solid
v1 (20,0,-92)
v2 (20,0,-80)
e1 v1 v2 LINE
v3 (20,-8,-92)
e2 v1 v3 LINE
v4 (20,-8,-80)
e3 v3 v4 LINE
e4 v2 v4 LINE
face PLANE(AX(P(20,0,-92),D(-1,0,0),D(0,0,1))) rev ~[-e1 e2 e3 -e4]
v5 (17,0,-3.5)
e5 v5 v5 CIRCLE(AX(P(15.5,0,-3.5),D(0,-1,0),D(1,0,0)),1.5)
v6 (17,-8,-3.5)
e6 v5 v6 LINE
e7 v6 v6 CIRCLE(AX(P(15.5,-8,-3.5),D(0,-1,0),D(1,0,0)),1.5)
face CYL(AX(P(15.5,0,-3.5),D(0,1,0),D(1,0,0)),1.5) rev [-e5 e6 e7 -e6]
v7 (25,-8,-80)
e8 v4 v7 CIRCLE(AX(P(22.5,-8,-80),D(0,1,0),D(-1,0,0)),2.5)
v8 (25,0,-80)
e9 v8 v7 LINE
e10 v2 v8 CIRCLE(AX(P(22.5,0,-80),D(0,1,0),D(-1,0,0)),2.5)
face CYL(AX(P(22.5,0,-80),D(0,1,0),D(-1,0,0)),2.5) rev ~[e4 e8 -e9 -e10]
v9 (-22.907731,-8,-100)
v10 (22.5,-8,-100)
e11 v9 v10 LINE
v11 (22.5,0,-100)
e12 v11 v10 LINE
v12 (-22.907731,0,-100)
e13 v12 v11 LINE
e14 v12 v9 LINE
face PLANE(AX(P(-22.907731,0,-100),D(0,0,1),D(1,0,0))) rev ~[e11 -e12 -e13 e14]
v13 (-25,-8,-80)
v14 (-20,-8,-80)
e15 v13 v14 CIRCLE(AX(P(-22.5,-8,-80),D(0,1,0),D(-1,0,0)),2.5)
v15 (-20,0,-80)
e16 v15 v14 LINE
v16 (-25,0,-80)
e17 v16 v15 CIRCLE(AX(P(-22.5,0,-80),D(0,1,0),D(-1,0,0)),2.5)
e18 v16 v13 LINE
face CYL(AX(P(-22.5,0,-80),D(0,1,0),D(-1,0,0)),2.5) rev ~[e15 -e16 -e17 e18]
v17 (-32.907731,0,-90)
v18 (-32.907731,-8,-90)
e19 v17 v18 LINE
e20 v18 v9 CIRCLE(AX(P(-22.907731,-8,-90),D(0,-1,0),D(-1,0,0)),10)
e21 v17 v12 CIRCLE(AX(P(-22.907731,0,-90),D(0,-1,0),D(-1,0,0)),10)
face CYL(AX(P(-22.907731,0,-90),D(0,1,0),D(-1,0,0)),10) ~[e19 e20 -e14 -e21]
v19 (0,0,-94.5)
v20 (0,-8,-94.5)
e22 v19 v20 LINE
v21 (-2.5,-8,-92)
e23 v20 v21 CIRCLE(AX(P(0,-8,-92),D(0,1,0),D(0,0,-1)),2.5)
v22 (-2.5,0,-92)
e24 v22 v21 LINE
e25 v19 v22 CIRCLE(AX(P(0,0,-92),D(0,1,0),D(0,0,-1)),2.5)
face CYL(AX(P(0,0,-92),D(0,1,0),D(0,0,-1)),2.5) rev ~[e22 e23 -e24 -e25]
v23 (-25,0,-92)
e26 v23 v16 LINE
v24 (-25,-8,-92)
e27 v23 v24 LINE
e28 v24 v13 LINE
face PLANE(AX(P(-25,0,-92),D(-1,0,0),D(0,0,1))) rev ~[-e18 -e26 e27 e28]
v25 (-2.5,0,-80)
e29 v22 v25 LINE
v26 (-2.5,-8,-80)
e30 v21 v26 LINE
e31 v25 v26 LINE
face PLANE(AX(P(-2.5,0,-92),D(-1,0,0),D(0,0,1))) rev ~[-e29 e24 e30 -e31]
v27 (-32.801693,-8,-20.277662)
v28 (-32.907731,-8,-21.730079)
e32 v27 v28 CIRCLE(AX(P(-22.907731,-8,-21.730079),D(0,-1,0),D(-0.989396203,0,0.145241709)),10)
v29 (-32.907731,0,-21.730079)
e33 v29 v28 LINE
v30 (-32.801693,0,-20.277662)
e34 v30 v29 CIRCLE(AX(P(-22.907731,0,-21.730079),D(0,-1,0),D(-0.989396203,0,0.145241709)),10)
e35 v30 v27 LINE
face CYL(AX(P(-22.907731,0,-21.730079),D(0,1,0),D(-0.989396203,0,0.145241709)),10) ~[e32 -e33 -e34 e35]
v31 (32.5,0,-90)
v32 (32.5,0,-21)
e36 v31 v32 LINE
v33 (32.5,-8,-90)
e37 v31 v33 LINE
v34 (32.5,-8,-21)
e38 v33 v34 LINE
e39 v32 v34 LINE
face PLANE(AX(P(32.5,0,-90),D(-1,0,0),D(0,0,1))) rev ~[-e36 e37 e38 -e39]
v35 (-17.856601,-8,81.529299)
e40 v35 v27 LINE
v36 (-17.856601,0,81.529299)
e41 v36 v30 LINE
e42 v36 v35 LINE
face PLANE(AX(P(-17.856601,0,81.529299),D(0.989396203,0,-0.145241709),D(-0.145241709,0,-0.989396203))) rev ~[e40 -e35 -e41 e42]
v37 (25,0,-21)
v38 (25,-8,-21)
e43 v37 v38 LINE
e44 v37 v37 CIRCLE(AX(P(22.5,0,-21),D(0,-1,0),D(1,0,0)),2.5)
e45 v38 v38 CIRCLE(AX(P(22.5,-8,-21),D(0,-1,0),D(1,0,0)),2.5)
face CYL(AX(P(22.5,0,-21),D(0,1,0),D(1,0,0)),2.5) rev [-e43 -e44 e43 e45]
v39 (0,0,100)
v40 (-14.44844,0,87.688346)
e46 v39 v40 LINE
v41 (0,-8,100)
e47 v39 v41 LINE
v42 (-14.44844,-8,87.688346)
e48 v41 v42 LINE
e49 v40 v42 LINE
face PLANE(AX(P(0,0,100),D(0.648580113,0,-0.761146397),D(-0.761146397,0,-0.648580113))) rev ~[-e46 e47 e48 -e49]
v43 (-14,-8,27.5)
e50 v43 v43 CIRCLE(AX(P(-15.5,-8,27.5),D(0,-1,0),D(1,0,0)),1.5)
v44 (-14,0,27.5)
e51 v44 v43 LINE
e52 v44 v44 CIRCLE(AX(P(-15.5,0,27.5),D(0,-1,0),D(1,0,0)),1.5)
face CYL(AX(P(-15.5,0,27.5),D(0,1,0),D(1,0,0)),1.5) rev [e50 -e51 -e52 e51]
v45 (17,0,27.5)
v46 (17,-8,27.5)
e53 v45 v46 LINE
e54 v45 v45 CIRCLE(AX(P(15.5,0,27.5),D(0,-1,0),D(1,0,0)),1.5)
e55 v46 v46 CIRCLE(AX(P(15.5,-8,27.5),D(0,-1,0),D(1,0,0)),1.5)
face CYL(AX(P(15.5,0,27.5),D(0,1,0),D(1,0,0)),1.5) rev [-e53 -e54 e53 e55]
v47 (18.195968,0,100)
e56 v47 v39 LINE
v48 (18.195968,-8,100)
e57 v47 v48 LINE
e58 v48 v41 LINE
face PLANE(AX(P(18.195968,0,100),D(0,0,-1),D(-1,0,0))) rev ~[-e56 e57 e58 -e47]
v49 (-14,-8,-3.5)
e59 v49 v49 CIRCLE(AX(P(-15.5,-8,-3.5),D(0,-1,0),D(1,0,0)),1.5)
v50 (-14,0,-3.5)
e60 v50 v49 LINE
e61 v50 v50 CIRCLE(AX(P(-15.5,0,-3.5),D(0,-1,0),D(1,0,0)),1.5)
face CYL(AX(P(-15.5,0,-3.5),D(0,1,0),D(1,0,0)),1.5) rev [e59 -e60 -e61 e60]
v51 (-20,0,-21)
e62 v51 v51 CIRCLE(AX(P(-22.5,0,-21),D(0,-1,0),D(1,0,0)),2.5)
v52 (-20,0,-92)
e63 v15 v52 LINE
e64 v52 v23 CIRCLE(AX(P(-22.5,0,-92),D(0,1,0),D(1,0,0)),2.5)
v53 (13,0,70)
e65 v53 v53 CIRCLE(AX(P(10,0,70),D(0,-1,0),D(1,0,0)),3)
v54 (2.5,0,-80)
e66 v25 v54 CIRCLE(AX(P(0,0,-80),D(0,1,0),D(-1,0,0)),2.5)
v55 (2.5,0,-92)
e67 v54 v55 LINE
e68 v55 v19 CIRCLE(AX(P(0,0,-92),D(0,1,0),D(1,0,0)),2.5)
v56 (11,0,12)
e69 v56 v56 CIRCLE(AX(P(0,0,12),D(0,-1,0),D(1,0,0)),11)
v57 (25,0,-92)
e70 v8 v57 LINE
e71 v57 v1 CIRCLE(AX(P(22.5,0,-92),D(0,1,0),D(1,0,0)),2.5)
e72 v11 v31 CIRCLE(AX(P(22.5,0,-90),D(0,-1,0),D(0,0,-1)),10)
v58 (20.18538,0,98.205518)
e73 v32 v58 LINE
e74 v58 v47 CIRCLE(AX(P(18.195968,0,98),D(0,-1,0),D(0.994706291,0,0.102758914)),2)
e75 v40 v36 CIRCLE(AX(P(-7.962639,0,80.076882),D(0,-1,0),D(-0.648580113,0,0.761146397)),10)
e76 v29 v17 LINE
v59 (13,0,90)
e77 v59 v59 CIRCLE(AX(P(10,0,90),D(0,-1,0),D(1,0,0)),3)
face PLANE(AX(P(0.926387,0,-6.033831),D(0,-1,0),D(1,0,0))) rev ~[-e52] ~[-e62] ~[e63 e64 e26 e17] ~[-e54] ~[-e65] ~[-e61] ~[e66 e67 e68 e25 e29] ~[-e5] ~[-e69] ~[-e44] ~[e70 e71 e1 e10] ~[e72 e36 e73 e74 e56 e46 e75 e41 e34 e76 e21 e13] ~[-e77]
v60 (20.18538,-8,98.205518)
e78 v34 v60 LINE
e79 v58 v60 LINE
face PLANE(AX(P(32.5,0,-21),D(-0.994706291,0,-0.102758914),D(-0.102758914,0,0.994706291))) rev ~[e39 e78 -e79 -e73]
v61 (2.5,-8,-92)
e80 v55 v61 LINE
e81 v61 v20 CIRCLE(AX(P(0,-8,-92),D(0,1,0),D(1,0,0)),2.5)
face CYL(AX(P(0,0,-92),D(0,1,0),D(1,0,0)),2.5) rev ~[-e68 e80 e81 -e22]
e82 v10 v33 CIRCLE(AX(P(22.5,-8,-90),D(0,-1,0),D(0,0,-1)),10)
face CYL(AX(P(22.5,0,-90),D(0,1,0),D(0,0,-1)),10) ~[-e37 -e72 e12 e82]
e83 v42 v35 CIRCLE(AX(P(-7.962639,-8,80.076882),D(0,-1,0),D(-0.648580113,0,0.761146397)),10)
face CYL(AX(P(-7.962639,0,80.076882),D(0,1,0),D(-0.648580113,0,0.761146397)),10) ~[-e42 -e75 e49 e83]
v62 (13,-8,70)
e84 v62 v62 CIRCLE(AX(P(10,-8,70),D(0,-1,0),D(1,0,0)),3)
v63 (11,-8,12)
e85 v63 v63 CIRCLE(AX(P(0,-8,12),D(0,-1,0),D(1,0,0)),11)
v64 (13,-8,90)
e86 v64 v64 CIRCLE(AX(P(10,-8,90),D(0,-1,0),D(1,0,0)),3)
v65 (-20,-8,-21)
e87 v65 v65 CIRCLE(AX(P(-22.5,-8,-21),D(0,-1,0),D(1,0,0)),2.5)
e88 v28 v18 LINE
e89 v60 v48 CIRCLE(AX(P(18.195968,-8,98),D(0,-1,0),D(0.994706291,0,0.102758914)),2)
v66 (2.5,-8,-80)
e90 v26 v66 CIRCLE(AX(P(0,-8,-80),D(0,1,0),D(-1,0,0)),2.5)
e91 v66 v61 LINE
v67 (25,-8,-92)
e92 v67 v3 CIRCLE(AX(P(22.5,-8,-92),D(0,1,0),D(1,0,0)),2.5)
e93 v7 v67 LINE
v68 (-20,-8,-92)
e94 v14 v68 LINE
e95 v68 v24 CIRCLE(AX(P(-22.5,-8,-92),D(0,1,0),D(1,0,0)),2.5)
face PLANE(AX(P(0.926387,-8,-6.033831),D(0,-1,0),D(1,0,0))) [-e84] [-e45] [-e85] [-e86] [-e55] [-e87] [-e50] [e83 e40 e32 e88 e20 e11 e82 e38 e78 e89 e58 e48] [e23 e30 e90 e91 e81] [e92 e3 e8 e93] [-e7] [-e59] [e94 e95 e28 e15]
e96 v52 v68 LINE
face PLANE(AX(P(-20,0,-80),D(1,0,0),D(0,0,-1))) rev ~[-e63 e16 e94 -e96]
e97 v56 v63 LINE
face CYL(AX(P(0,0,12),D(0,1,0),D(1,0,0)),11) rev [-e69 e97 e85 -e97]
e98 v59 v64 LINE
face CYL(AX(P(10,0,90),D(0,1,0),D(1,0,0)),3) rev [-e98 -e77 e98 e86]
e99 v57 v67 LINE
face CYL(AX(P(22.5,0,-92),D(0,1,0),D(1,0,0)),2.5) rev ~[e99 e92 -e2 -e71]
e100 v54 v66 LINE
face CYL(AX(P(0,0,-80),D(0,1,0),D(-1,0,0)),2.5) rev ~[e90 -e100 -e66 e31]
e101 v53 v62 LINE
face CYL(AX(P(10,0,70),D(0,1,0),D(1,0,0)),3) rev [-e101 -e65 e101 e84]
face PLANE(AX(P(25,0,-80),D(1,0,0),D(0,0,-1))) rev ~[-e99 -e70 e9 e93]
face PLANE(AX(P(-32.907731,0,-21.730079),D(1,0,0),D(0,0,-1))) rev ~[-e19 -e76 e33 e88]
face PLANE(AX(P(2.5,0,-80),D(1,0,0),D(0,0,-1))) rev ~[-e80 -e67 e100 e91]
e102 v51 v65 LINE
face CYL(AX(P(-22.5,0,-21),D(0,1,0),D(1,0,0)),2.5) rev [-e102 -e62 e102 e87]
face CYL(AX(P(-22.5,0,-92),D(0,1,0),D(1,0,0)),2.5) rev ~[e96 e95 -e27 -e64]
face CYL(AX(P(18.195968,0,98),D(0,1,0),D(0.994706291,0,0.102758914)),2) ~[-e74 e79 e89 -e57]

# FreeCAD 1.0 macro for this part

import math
import FreeCAD as App
import Part
import Sketcher
from FreeCAD import Vector

doc = App.newDocument("Part")
body = doc.addObject("PartDesign::Body", "Body")

# Sketch on XZ plane
sketch1 = body.newObject("Sketcher::SketchObject", "Sketch")
sketch1.AttachmentSupport = (doc.getObject("XZ_Plane"), [""])
sketch1.MapMode = "FlatFace"
sketch1.addGeometry([
    Part.LineSegment(Vector(-22.9, -100, 0), Vector(22.5, -100, 0)),  # 0
    Part.ArcOfCircle(Part.Circle(Vector(22.5, -90, 0), Vector(0, 0, 1), 10), math.radians(-90), math.radians(0)),  # 1
    Part.LineSegment(Vector(32.5, -90, 0), Vector(32.5, -21, 0)),  # 2
    Part.LineSegment(Vector(32.5, -21, 0), Vector(20.2, 98.2, 0)),  # 3
    Part.ArcOfCircle(Part.Circle(Vector(18.2, 98, 0), Vector(0, 0, 1), 2), math.radians(6), math.radians(90)),  # 4
    Part.LineSegment(Vector(18.2, 100, 0), Vector(0, 100, 0)),  # 5
    Part.LineSegment(Vector(0, 100, 0), Vector(-14.4, 87.7, 0)),  # 6
    Part.ArcOfCircle(Part.Circle(Vector(-8, 80.1, 0), Vector(0, 0, 1), 10), math.radians(130), math.radians(172)),  # 7
    Part.LineSegment(Vector(-17.9, 81.5, 0), Vector(-32.8, -20.3, 0)),  # 8
    Part.ArcOfCircle(Part.Circle(Vector(-22.9, -21.7, 0), Vector(0, 0, 1), 10), math.radians(171.65), math.radians(180)),  # 9
    Part.LineSegment(Vector(-32.9, -21.7, 0), Vector(-32.9, -90, 0)),  # 10
    Part.ArcOfCircle(Part.Circle(Vector(-22.9, -90, 0), Vector(0, 0, 1), 10), math.radians(180), math.radians(270)),  # 11
    Part.ArcOfCircle(Part.Circle(Vector(-22.5, -92, 0), Vector(0, 0, 1), 2.5), math.radians(180), math.radians(360)),  # 12
    Part.LineSegment(Vector(-25, -92, 0), Vector(-25, -80, 0)),  # 13
    Part.ArcOfCircle(Part.Circle(Vector(-22.5, -80, 0), Vector(0, 0, 1), 2.5), math.radians(0), math.radians(180)),  # 14
    Part.LineSegment(Vector(-20, -80, 0), Vector(-20, -92, 0)),  # 15
    Part.Circle(Vector(-22.5, -21, 0), Vector(0, 0, 1), 2.5),  # 16
    Part.Circle(Vector(-15.5, -3.5, 0), Vector(0, 0, 1), 1.5),  # 17
    Part.ArcOfCircle(Part.Circle(Vector(0, -92, 0), Vector(0, 0, 1), 2.5), math.radians(180), math.radians(270)),  # 18
    Part.LineSegment(Vector(-2.5, -92, 0), Vector(-2.5, -80, 0)),  # 19
    Part.ArcOfCircle(Part.Circle(Vector(0, -80, 0), Vector(0, 0, 1), 2.5), math.radians(0), math.radians(180)),  # 20
    Part.LineSegment(Vector(2.5, -80, 0), Vector(2.5, -92, 0)),  # 21
    Part.ArcOfCircle(Part.Circle(Vector(0, -92, 0), Vector(0, 0, 1), 2.5), math.radians(-90), math.radians(0)),  # 22
    Part.ArcOfCircle(Part.Circle(Vector(22.5, -92, 0), Vector(0, 0, 1), 2.5), math.radians(180), math.radians(360)),  # 23
    Part.LineSegment(Vector(20, -92, 0), Vector(20, -80, 0)),  # 24
    Part.ArcOfCircle(Part.Circle(Vector(22.5, -80, 0), Vector(0, 0, 1), 2.5), math.radians(0), math.radians(180)),  # 25
    Part.LineSegment(Vector(25, -80, 0), Vector(25, -92, 0)),  # 26
    Part.Circle(Vector(15.5, -3.5, 0), Vector(0, 0, 1), 1.5),  # 27
    Part.Circle(Vector(22.5, -21, 0), Vector(0, 0, 1), 2.5),  # 28
    Part.Circle(Vector(-15.5, 27.5, 0), Vector(0, 0, 1), 1.5),  # 29
    Part.Circle(Vector(0, 12, 0), Vector(0, 0, 1), 11),  # 30
    Part.Circle(Vector(15.5, 27.5, 0), Vector(0, 0, 1), 1.5),  # 31
    Part.Circle(Vector(10, 70, 0), Vector(0, 0, 1), 3),  # 32
    Part.Circle(Vector(10, 90, 0), Vector(0, 0, 1), 3),  # 33
], False)
sketch1.addConstraint([
    Sketcher.Constraint("Tangent", 0, 2, 1, 1),
    Sketcher.Constraint("Tangent", 1, 2, 2, 1),
    Sketcher.Constraint("Coincident", 2, 2, 3, 1),
    Sketcher.Constraint("Tangent", 3, 2, 4, 1),
    Sketcher.Constraint("Tangent", 4, 2, 5, 1),
    Sketcher.Constraint("Coincident", 5, 2, 6, 1),
    Sketcher.Constraint("Tangent", 6, 2, 7, 1),
    Sketcher.Constraint("Tangent", 7, 2, 8, 1),
    Sketcher.Constraint("Tangent", 8, 2, 9, 1),
    Sketcher.Constraint("Tangent", 9, 2, 10, 1),
    Sketcher.Constraint("Tangent", 10, 2, 11, 1),
    Sketcher.Constraint("Tangent", 11, 2, 0, 1),
    Sketcher.Constraint("Tangent", 12, 1, 13, 1),
    Sketcher.Constraint("Tangent", 13, 2, 14, 2),
    Sketcher.Constraint("Tangent", 14, 1, 15, 1),
    Sketcher.Constraint("Tangent", 15, 2, 12, 2),
    Sketcher.Constraint("Tangent", 18, 1, 19, 1),
    Sketcher.Constraint("Tangent", 19, 2, 20, 2),
    Sketcher.Constraint("Tangent", 20, 1, 21, 1),
    Sketcher.Constraint("Tangent", 21, 2, 22, 2),
    Sketcher.Constraint("Tangent", 22, 1, 18, 2),
    Sketcher.Constraint("Tangent", 23, 1, 24, 1),
    Sketcher.Constraint("Tangent", 24, 2, 25, 2),
    Sketcher.Constraint("Tangent", 25, 1, 26, 1),
    Sketcher.Constraint("Tangent", 26, 2, 23, 2),
    Sketcher.Constraint("Horizontal", 0),
    Sketcher.Constraint("Vertical", 2),
    Sketcher.Constraint("Horizontal", 5),
    Sketcher.Constraint("Vertical", 10),
    Sketcher.Constraint("Vertical", 13),
    Sketcher.Constraint("Vertical", 15),
    Sketcher.Constraint("Vertical", 19),
    Sketcher.Constraint("Vertical", 21),
    Sketcher.Constraint("Vertical", 24),
    Sketcher.Constraint("Vertical", 26),
    Sketcher.Constraint("Equal", 1, 7),
    Sketcher.Constraint("Equal", 7, 9),
    Sketcher.Constraint("Equal", 9, 11),
    Sketcher.Constraint("Equal", 14, 16),
    Sketcher.Constraint("Equal", 16, 18),
    Sketcher.Constraint("Equal", 18, 20),
    Sketcher.Constraint("Equal", 22, 23),
    Sketcher.Constraint("Equal", 17, 27),
    Sketcher.Constraint("Equal", 25, 28),
    Sketcher.Constraint("Equal", 27, 29),
    Sketcher.Constraint("Equal", 29, 31),
    Sketcher.Constraint("Equal", 32, 33),
    Sketcher.Constraint("Symmetric", 12, 3, 23, 3, -2),
    Sketcher.Constraint("Symmetric", 17, 3, 27, 3, -2),
    Sketcher.Constraint("Symmetric", 16, 3, 28, 3, -2),
    Sketcher.Constraint("Symmetric", 29, 3, 31, 3, -2),
    Sketcher.Constraint("PointOnObject", 18, 3, -2),
    Sketcher.Constraint("PointOnObject", 30, 3, -2),
    Sketcher.Constraint("PointOnObject", 5, 2, -2),
    Sketcher.Constraint("PointOnObject", 22, 1, -2),
    Sketcher.Constraint("Horizontal", 12, 3, 18, 3),
    Sketcher.Constraint("Horizontal", 14, 3, 20, 3),
    Sketcher.Constraint("Horizontal", 20, 3, 25, 3),
    Sketcher.Constraint("Horizontal", 28, 3, 2, 2),
    Sketcher.Constraint("Vertical", 14, 3, 16, 3),
    Sketcher.Constraint("Vertical", 1, 3, 23, 3),
    Sketcher.Constraint("Vertical", 17, 3, 29, 3),
    Sketcher.Constraint("Vertical", 32, 3, 33, 3),
    Sketcher.Constraint("Diameter", 16, 5.0),
    Sketcher.Constraint("Diameter", 17, 3.0),
    Sketcher.Constraint("Diameter", 30, 22.0),
    Sketcher.Constraint("Diameter", 32, 6.0),
    Sketcher.Constraint("Radius", 1, 10.0),
    Sketcher.Constraint("Radius", 4, 2.0),
    Sketcher.Constraint("DistanceY", 2, 1, 2, 2, 69.0),
    Sketcher.Constraint("DistanceY", 13, 1, 13, 2, 12.0),
    Sketcher.Constraint("DistanceY", 1, 3, -1, 1, 90.0),
    Sketcher.Constraint("DistanceY", -1, 1, 4, 3, 98.0),
    Sketcher.Constraint("DistanceY", 12, 3, -1, 1, 92.0),
    Sketcher.Constraint("DistanceY", -1, 1, 30, 3, 12.0),
    Sketcher.Constraint("DistanceX", -1, 1, 32, 3, 10.0),
    Sketcher.Constraint("DistanceY", -1, 1, 32, 3, 70.0),
    Sketcher.Constraint("DistanceY", -1, 1, 33, 3, 90.0),
    Sketcher.Constraint("DistanceX", 12, 1, -1, 1, 25.0),
    Sketcher.Constraint("DistanceX", 16, 3, 17, 3, 7.0),
    Sketcher.Constraint("DistanceY", 17, 3, 29, 3, 31.0),
    Sketcher.Constraint("DistanceY", 17, 3, -1, 1, 3.5),
    Sketcher.Constraint("DistanceX", 0, 1, 0, 2, 45.407731),
    Sketcher.Constraint("DistanceY", 10, 2, 10, 1, 68.269921),
    Sketcher.Constraint("DistanceX", 7, 2, -1, 1, 17.856601),
    Sketcher.Constraint("DistanceY", -1, 1, 7, 2, 81.529299),
    Sketcher.Constraint("DistanceX", 9, 3, 4, 3, 41.103698),
])
pad1 = body.newObject("PartDesign::Pad", "Pad")
pad1.Profile = sketch1
pad1.Length = 8

doc.recompute()
